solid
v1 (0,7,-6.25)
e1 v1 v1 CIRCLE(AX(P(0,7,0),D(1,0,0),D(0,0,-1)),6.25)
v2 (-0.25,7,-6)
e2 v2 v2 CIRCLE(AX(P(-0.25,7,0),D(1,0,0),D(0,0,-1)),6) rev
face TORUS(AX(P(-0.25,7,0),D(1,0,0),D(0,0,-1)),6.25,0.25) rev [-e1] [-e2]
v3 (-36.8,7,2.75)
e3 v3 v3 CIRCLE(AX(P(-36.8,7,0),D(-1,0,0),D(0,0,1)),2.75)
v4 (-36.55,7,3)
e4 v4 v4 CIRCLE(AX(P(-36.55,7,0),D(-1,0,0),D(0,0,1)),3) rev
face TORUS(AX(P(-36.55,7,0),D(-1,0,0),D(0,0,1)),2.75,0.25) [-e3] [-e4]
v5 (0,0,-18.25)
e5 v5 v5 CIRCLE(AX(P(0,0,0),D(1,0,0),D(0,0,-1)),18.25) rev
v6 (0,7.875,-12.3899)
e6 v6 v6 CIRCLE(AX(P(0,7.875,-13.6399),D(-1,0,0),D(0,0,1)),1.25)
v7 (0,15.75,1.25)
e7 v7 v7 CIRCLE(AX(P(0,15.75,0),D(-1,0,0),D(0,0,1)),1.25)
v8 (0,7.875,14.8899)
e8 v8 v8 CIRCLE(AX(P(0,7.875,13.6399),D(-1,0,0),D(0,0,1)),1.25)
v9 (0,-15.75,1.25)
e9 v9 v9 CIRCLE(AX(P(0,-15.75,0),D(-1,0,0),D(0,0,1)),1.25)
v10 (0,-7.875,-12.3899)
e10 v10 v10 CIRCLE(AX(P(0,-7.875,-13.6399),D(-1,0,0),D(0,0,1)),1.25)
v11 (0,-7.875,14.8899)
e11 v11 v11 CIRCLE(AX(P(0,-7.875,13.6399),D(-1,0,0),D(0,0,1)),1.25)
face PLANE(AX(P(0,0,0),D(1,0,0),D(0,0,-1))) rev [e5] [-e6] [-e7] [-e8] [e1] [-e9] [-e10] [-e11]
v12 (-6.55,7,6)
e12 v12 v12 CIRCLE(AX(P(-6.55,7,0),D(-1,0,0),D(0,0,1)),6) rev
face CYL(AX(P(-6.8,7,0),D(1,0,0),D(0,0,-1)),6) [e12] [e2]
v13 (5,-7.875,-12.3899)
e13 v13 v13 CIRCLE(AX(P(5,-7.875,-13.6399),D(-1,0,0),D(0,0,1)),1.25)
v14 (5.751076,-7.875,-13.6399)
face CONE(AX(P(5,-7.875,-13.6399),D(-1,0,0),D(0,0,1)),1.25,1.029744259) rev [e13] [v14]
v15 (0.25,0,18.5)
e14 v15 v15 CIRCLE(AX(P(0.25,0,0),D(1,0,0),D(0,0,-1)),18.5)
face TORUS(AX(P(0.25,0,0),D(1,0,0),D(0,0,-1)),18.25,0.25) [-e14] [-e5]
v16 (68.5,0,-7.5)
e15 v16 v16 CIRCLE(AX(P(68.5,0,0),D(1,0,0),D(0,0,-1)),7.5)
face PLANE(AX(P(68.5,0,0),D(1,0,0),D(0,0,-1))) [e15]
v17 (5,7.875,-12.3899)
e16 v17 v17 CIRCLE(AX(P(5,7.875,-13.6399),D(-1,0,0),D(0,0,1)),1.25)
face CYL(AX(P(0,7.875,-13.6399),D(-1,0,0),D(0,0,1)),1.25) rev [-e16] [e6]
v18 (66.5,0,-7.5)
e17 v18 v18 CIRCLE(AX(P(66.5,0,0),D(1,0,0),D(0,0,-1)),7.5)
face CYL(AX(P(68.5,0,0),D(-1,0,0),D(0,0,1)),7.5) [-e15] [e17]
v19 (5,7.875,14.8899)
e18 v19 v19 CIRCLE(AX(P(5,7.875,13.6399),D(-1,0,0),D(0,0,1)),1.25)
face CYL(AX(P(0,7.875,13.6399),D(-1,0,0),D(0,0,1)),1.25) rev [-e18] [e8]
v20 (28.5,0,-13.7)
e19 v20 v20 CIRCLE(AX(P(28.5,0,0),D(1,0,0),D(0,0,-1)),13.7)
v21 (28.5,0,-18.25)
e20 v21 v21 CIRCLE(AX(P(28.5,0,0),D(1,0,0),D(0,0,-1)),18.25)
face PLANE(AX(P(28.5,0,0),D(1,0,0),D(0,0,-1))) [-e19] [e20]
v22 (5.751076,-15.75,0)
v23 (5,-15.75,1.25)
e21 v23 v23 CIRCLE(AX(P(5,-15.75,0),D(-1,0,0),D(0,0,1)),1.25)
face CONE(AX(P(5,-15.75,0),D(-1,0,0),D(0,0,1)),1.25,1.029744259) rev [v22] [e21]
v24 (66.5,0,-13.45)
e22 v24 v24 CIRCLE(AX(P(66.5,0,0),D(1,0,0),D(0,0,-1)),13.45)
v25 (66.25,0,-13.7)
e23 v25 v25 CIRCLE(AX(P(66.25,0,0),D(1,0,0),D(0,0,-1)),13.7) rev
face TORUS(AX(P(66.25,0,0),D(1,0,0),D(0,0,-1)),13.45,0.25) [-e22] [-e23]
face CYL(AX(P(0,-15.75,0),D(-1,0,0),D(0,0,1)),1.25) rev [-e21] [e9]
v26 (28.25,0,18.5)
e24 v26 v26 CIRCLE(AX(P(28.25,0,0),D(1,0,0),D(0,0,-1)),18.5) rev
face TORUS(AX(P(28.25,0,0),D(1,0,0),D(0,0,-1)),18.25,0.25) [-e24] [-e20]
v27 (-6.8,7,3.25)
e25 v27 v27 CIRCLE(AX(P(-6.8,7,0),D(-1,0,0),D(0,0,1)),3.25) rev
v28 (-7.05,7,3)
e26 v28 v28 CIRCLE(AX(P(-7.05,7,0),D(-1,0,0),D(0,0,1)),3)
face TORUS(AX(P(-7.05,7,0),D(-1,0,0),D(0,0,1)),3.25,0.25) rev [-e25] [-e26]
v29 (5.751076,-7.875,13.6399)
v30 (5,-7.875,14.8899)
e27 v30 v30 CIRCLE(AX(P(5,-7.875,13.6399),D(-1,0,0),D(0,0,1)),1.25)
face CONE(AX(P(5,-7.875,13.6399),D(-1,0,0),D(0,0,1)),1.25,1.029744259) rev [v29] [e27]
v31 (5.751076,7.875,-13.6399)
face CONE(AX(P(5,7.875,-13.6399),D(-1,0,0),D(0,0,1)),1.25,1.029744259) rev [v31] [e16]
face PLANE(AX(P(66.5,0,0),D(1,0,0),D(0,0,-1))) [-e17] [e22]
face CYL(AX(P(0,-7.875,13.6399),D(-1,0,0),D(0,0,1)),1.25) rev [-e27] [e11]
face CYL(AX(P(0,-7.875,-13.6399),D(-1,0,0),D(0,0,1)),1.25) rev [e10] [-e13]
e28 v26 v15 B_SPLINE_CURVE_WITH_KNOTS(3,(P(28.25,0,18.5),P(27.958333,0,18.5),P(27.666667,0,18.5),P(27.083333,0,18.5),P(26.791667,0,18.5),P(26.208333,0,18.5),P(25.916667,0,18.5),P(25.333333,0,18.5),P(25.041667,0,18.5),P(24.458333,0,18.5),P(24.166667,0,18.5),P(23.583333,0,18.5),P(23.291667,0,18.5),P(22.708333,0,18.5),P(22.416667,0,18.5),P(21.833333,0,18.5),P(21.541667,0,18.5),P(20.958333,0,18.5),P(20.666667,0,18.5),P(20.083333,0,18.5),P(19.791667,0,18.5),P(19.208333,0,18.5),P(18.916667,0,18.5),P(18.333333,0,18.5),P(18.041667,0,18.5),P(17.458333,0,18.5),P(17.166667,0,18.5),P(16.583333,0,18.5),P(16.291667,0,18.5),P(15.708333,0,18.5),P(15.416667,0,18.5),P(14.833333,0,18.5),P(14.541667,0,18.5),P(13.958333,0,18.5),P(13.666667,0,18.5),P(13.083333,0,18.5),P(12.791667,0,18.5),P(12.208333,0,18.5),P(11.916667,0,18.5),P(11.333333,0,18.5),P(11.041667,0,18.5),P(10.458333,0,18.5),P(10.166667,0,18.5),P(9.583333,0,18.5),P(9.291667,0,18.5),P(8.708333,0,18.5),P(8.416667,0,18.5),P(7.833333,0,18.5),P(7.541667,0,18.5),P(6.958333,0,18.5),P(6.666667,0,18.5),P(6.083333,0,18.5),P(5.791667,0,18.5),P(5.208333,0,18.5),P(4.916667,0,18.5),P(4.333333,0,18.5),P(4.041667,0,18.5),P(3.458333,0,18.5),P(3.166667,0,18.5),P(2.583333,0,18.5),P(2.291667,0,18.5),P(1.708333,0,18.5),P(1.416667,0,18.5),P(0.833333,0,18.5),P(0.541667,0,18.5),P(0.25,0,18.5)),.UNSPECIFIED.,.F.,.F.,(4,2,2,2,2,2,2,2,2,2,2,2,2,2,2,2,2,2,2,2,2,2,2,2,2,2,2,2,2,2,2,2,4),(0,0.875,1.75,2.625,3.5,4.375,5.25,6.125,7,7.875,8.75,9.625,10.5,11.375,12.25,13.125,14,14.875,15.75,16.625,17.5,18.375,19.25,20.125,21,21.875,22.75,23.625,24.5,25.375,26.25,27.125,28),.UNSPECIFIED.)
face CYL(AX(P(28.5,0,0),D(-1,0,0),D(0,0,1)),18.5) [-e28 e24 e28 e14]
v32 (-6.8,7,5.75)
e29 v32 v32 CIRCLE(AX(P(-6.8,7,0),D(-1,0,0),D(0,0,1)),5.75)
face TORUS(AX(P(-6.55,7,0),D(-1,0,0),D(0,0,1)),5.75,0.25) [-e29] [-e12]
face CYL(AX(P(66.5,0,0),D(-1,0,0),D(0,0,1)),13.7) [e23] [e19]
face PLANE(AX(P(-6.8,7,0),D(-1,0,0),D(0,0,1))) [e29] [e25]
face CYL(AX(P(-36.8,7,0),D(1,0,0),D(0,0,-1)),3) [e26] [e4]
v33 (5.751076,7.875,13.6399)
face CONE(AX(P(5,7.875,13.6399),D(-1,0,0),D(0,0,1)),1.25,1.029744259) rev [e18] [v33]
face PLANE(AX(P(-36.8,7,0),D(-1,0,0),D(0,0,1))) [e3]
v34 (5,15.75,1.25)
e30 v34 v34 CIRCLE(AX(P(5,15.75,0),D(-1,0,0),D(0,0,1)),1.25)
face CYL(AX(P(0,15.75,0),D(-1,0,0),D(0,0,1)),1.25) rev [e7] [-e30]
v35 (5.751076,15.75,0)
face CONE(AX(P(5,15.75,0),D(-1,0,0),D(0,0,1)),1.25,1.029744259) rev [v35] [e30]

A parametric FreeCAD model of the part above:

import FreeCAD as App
import Part
import Sketcher
Q = App.Units.Quantity


def edges_at(feature, points):
    """Names of the edges that pass closest to the given points."""
    edges = feature.Shape.Edges
    near = lambda p: min(range(len(edges)), key=lambda i: edges[i].distToShape(Part.Vertex(*p))[0])
    return sorted({f"Edge{near(p) + 1}" for p in points})

doc = App.newDocument("Part")
body = doc.addObject("PartDesign::Body", "Body")

# Sketch on YZ plane
sketch1 = doc.addObject("Sketcher::SketchObject", "Sketch")
body.addObject(sketch1)
sketch1.AttachmentSupport = (doc.YZ_Plane, [""])
sketch1.MapMode = "FlatFace"
sketch1.addGeometry(Part.Circle(App.Vector(0, 0, 0), App.Vector(0, 0, 1), 18.5), False)
sketch1.addConstraint([
    Sketcher.Constraint("Coincident", 0, 3, -1, 1),
    Sketcher.Constraint("Diameter", 0, Q("37 mm")),
])
pad1 = doc.addObject("PartDesign::Pad", "Pad")
body.addObject(pad1)
pad1.Profile = sketch1
pad1.Length = 28.5

# Sketch on YZ plane
sketch2 = doc.addObject("Sketcher::SketchObject", "Sketch001")
body.addObject(sketch2)
sketch2.AttachmentSupport = (doc.YZ_Plane, [""])
sketch2.MapMode = "FlatFace"
sketch2.AttachmentOffset = App.Placement(App.Vector(0, 0, 28.5), App.Rotation())
sketch2.addGeometry(Part.Circle(App.Vector(0, 0, 0), App.Vector(0, 0, 1), 13.7), False)
sketch2.addConstraint([
    Sketcher.Constraint("Coincident", 0, 3, -1, 1),
    Sketcher.Constraint("Diameter", 0, Q("27.4 mm")),
])
pad2 = doc.addObject("PartDesign::Pad", "Pad001")
body.addObject(pad2)
pad2.Profile = sketch2
pad2.Length = 38

# Sketch on YZ plane
sketch3 = doc.addObject("Sketcher::SketchObject", "Sketch002")
body.addObject(sketch3)
sketch3.AttachmentSupport = (doc.YZ_Plane, [""])
sketch3.MapMode = "FlatFace"
sketch3.AttachmentOffset = App.Placement(App.Vector(0, 0, 66.5), App.Rotation())
sketch3.addGeometry(Part.Circle(App.Vector(0, 0, 0), App.Vector(0, 0, 1), 7.5), False)
sketch3.addConstraint([
    Sketcher.Constraint("Coincident", 0, 3, -1, 1),
    Sketcher.Constraint("Diameter", 0, Q("15 mm")),
])
pad3 = doc.addObject("PartDesign::Pad", "Pad002")
body.addObject(pad3)
pad3.Profile = sketch3
pad3.Length = 2

# Sketch on YZ plane
sketch4 = doc.addObject("Sketcher::SketchObject", "Sketch003")
body.addObject(sketch4)
sketch4.AttachmentSupport = (doc.YZ_Plane, [""])
sketch4.MapMode = "FlatFace"
sketch4.addGeometry([
    Part.Circle(App.Vector(15.75, 0, 0), App.Vector(0, 0, 1), 1.25),  # 0
    Part.Circle(App.Vector(7.875, 13.6399, 0), App.Vector(0, 0, 1), 1.25),  # 1
    Part.Circle(App.Vector(-7.875, 13.6399, 0), App.Vector(0, 0, 1), 1.25),  # 2
    Part.Circle(App.Vector(-15.75, 0, 0), App.Vector(0, 0, 1), 1.25),  # 3
    Part.Circle(App.Vector(-7.875, -13.6399, 0), App.Vector(0, 0, 1), 1.25),  # 4
    Part.Circle(App.Vector(7.875, -13.6399, 0), App.Vector(0, 0, 1), 1.25),  # 5
], False)
sketch4.addConstraint([
    Sketcher.Constraint("Equal", 0, 1),
    Sketcher.Constraint("Equal", 1, 2),
    Sketcher.Constraint("Equal", 2, 3),
    Sketcher.Constraint("Equal", 3, 4),
    Sketcher.Constraint("Equal", 4, 5),
    Sketcher.Constraint("Symmetric", 0, 3, 3, 3, -1, 1),
    Sketcher.Constraint("Symmetric", 1, 3, 4, 3, -1, 1),
    Sketcher.Constraint("Symmetric", 2, 3, 5, 3, -1, 1),
    Sketcher.Constraint("Symmetric", 1, 3, 2, 3, -2),
    Sketcher.Constraint("PointOnObject", 0, 3, -1),
    Sketcher.Constraint("Diameter", 0, Q("2.5 mm")),
    Sketcher.Constraint("DistanceX", 3, 3, 0, 3, Q("31.5 mm")),
    Sketcher.Constraint("DistanceX", 2, 3, 1, 3, Q("15.75 mm")),
    Sketcher.Constraint("DistanceY", -1, 1, 1, 3, Q("13.6399 mm")),
])
doc.recompute()
hole = doc.addObject("PartDesign::Hole", "Hole")
body.addObject(hole)
hole.Profile = sketch4
hole.ThreadType = "None"
hole.Diameter = 2.5
hole.DepthType = "Dimension"
hole.Depth = 5
hole.DrillPoint = "Angled"
hole.DrillPointAngle = 118
hole.Reversed = True

# Sketch on YZ plane
sketch5 = doc.addObject("Sketcher::SketchObject", "Sketch004")
body.addObject(sketch5)
sketch5.AttachmentSupport = (doc.YZ_Plane, [""])
sketch5.MapMode = "FlatFace"
sketch5.addGeometry(Part.Circle(App.Vector(7, 0, 0), App.Vector(0, 0, 1), 6), False)
sketch5.addConstraint([
    Sketcher.Constraint("PointOnObject", 0, 3, -1),
    Sketcher.Constraint("Diameter", 0, Q("12 mm")),
    Sketcher.Constraint("DistanceX", -1, 1, 0, 3, Q("7 mm")),
])
pad4 = doc.addObject("PartDesign::Pad", "Pad003")
body.addObject(pad4)
pad4.Profile = sketch5
pad4.Length = 6.8
pad4.Reversed = True

# Sketch on YZ plane
sketch6 = doc.addObject("Sketcher::SketchObject", "Sketch005")
body.addObject(sketch6)
sketch6.AttachmentSupport = (doc.YZ_Plane, [""])
sketch6.MapMode = "FlatFace"
sketch6.AttachmentOffset = App.Placement(App.Vector(0, 0, -6.8), App.Rotation())
sketch6.addGeometry(Part.Circle(App.Vector(7, 0, 0), App.Vector(0, 0, 1), 3), False)
sketch6.addConstraint([
    Sketcher.Constraint("PointOnObject", 0, 3, -1),
    Sketcher.Constraint("Diameter", 0, Q("6 mm")),
    Sketcher.Constraint("DistanceX", -1, 1, 0, 3, Q("7 mm")),
])
pad5 = doc.addObject("PartDesign::Pad", "Pad004")
body.addObject(pad5)
pad5.Profile = sketch6
pad5.Length = 30
pad5.Reversed = True
doc.recompute()

fillet = doc.addObject("PartDesign::Fillet", "Fillet")
body.addObject(fillet)
fillet.Base = (pad5, edges_at(pad5, [
    (0, 0, -18.5),
    (28.5, 0, -18.5),
    (0, 7, 6),
    (-6.8, 7, 6),
    (-6.8, 7, -3),
    (-36.8, 7, -3),
    (66.5, 0, 13.7),
]))
fillet.Radius = 0.25

doc.recompute()
